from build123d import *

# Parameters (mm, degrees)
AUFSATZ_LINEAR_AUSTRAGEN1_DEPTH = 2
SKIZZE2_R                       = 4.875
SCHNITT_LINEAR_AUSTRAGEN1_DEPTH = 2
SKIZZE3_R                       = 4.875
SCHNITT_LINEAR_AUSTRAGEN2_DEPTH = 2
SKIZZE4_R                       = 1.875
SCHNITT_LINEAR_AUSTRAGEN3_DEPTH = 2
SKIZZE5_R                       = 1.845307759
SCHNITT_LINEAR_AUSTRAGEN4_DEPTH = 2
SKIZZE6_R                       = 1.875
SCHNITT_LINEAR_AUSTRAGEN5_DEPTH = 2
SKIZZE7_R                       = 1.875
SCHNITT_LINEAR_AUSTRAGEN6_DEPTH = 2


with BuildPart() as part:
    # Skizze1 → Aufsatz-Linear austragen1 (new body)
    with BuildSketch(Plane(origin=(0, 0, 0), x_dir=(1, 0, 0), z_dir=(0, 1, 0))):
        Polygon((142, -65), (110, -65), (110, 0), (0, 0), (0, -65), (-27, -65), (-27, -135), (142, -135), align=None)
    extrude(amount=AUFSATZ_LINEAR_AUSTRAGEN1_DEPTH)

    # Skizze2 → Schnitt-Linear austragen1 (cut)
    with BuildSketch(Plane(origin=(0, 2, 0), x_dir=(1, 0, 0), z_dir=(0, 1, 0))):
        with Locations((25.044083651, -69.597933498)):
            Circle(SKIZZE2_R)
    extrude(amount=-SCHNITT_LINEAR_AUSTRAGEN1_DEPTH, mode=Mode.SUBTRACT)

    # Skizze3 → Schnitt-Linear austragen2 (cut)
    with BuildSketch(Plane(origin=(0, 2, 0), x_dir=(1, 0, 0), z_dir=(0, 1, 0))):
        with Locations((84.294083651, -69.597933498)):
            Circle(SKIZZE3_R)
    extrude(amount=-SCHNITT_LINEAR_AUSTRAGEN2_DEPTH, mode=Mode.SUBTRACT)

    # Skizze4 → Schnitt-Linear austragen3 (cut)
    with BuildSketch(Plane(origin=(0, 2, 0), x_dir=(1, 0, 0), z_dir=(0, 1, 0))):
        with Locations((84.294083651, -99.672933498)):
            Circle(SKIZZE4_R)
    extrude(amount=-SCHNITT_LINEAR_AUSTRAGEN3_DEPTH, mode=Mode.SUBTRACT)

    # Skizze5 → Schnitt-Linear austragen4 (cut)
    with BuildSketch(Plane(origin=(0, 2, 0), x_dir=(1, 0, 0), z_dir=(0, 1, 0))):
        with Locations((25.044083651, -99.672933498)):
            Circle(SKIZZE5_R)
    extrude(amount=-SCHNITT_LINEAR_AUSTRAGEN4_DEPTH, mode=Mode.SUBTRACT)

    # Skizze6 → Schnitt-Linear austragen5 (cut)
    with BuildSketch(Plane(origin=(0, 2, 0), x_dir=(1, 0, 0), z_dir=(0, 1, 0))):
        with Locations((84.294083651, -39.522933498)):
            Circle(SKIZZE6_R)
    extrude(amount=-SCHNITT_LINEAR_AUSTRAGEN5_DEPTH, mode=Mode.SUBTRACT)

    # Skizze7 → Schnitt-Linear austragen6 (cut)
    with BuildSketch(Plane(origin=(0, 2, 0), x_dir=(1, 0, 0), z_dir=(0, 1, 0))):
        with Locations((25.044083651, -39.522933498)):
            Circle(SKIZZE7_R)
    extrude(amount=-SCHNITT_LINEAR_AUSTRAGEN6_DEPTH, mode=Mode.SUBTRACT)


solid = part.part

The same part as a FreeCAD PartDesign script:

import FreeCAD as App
import Part
import Sketcher
Q = App.Units.Quantity

doc = App.newDocument("Part")
body = doc.addObject("PartDesign::Body", "Body")

sketch1 = body.newObject("Sketcher::SketchObject", "Sketch")
sketch1.AttachmentSupport = (doc.getObject("XZ_Plane"), [""])
sketch1.MapMode = "FlatFace"
sketch1.addGeometry(Part.LineSegment(App.Vector(142, 65, 0), App.Vector(110, 65, 0)), False)
sketch1.addGeometry(Part.LineSegment(App.Vector(110, 65, 0), App.Vector(110, 0, 0)), False)
sketch1.addGeometry(Part.LineSegment(App.Vector(110, 0, 0), App.Vector(0, 0, 0)), False)
sketch1.addGeometry(Part.LineSegment(App.Vector(0, 0, 0), App.Vector(0, 65, 0)), False)
sketch1.addGeometry(Part.LineSegment(App.Vector(0, 65, 0), App.Vector(-27, 65, 0)), False)
sketch1.addGeometry(Part.LineSegment(App.Vector(-27, 65, 0), App.Vector(-27, 135, 0)), False)
sketch1.addGeometry(Part.LineSegment(App.Vector(-27, 135, 0), App.Vector(142, 135, 0)), False)
sketch1.addGeometry(Part.LineSegment(App.Vector(142, 135, 0), App.Vector(142, 65, 0)), False)
sketch1.addConstraint(Sketcher.Constraint("Coincident", 0, 2, 1, 1))
sketch1.addConstraint(Sketcher.Constraint("Coincident", 1, 2, 2, 1))
sketch1.addConstraint(Sketcher.Constraint("Coincident", 2, 2, 3, 1))
sketch1.addConstraint(Sketcher.Constraint("Coincident", 3, 2, 4, 1))
sketch1.addConstraint(Sketcher.Constraint("Coincident", 4, 2, 5, 1))
sketch1.addConstraint(Sketcher.Constraint("Coincident", 5, 2, 6, 1))
sketch1.addConstraint(Sketcher.Constraint("Coincident", 6, 2, 7, 1))
sketch1.addConstraint(Sketcher.Constraint("Coincident", 7, 2, 0, 1))
sketch1.addConstraint(Sketcher.Constraint("Horizontal", 0))
sketch1.addConstraint(Sketcher.Constraint("Vertical", 1))
sketch1.addConstraint(Sketcher.Constraint("Horizontal", 2))
sketch1.addConstraint(Sketcher.Constraint("Vertical", 3))
sketch1.addConstraint(Sketcher.Constraint("Horizontal", 4))
sketch1.addConstraint(Sketcher.Constraint("Vertical", 5))
sketch1.addConstraint(Sketcher.Constraint("Horizontal", 6))
sketch1.addConstraint(Sketcher.Constraint("Vertical", 7))
sketch1.addConstraint(Sketcher.Constraint("Coincident", 2, 2, -1, 1))
sketch1.addConstraint(Sketcher.Constraint("Horizontal", 0, 2, 3, 2))
sketch1.addConstraint(Sketcher.Constraint("DistanceX", 0, 2, 0, 1, Q("32 mm")))
sketch1.addConstraint(Sketcher.Constraint("DistanceX", 2, 2, 2, 1, Q("110 mm")))
sketch1.addConstraint(Sketcher.Constraint("DistanceX", 4, 2, 4, 1, Q("27 mm")))
sketch1.addConstraint(Sketcher.Constraint("DistanceY", 1, 2, 1, 1, Q("65 mm")))
sketch1.addConstraint(Sketcher.Constraint("DistanceY", 5, 1, 5, 2, Q("70 mm")))
pad1 = body.newObject("PartDesign::Pad", "Pad")
pad1.Profile = sketch1
pad1.Length = 2
pad1.Reversed = True

sketch2 = body.newObject("Sketcher::SketchObject", "Sketch001")
sketch2.AttachmentSupport = (doc.getObject("XZ_Plane"), [""])
sketch2.MapMode = "FlatFace"
sketch2.AttachmentOffset = App.Placement(App.Vector(0, 0, -2), App.Rotation())
sketch2.addGeometry(Part.Circle(App.Vector(25.044084, 69.597933, 0), App.Vector(0, 0, 1), 4.875), False)
sketch2.addConstraint(Sketcher.Constraint("Diameter", 0, Q("9.75 mm")))
sketch2.addConstraint(Sketcher.Constraint("DistanceX", -1, 1, 0, 3, Q("25.044084 mm")))
sketch2.addConstraint(Sketcher.Constraint("DistanceY", -1, 1, 0, 3, Q("69.597933 mm")))
pocket1 = body.newObject("PartDesign::Pocket", "Pocket")
pocket1.Profile = sketch2
pocket1.Length = 2
pocket1.Reversed = True

sketch3 = body.newObject("Sketcher::SketchObject", "Sketch002")
sketch3.AttachmentSupport = (doc.getObject("XZ_Plane"), [""])
sketch3.MapMode = "FlatFace"
sketch3.AttachmentOffset = App.Placement(App.Vector(0, 0, -2), App.Rotation())
sketch3.addGeometry(Part.Circle(App.Vector(84.294084, 69.597933, 0), App.Vector(0, 0, 1), 4.875), False)
sketch3.addConstraint(Sketcher.Constraint("Diameter", 0, Q("9.75 mm")))
sketch3.addConstraint(Sketcher.Constraint("DistanceX", -1, 1, 0, 3, Q("84.294084 mm")))
sketch3.addConstraint(Sketcher.Constraint("DistanceY", -1, 1, 0, 3, Q("69.597933 mm")))
pocket2 = body.newObject("PartDesign::Pocket", "Pocket001")
pocket2.Profile = sketch3
pocket2.Length = 2
pocket2.Reversed = True

sketch4 = body.newObject("Sketcher::SketchObject", "Sketch003")
sketch4.AttachmentSupport = (doc.getObject("XZ_Plane"), [""])
sketch4.MapMode = "FlatFace"
sketch4.AttachmentOffset = App.Placement(App.Vector(0, 0, -2), App.Rotation())
sketch4.addGeometry(Part.Circle(App.Vector(84.294084, 99.672933, 0), App.Vector(0, 0, 1), 1.875), False)
sketch4.addConstraint(Sketcher.Constraint("Diameter", 0, Q("3.75 mm")))
sketch4.addConstraint(Sketcher.Constraint("DistanceX", -1, 1, 0, 3, Q("84.294084 mm")))
sketch4.addConstraint(Sketcher.Constraint("DistanceY", -1, 1, 0, 3, Q("99.672933 mm")))
pocket3 = body.newObject("PartDesign::Pocket", "Pocket002")
pocket3.Profile = sketch4
pocket3.Length = 2
pocket3.Reversed = True

sketch5 = body.newObject("Sketcher::SketchObject", "Sketch004")
sketch5.AttachmentSupport = (doc.getObject("XZ_Plane"), [""])
sketch5.MapMode = "FlatFace"
sketch5.AttachmentOffset = App.Placement(App.Vector(0, 0, -2), App.Rotation())
sketch5.addGeometry(Part.Circle(App.Vector(25.044084, 99.672933, 0), App.Vector(0, 0, 1), 1.845308), False)
sketch5.addConstraint(Sketcher.Constraint("Diameter", 0, Q("3.690616 mm")))
sketch5.addConstraint(Sketcher.Constraint("DistanceX", -1, 1, 0, 3, Q("25.044084 mm")))
sketch5.addConstraint(Sketcher.Constraint("DistanceY", -1, 1, 0, 3, Q("99.672933 mm")))
pocket4 = body.newObject("PartDesign::Pocket", "Pocket003")
pocket4.Profile = sketch5
pocket4.Length = 2
pocket4.Reversed = True

sketch6 = body.newObject("Sketcher::SketchObject", "Sketch005")
sketch6.AttachmentSupport = (doc.getObject("XZ_Plane"), [""])
sketch6.MapMode = "FlatFace"
sketch6.AttachmentOffset = App.Placement(App.Vector(0, 0, -2), App.Rotation())
sketch6.addGeometry(Part.Circle(App.Vector(84.294084, 39.522933, 0), App.Vector(0, 0, 1), 1.875), False)
sketch6.addConstraint(Sketcher.Constraint("Diameter", 0, Q("3.75 mm")))
sketch6.addConstraint(Sketcher.Constraint("DistanceX", -1, 1, 0, 3, Q("84.294084 mm")))
sketch6.addConstraint(Sketcher.Constraint("DistanceY", -1, 1, 0, 3, Q("39.522933 mm")))
pocket5 = body.newObject("PartDesign::Pocket", "Pocket004")
pocket5.Profile = sketch6
pocket5.Length = 2
pocket5.Reversed = True

sketch7 = body.newObject("Sketcher::SketchObject", "Sketch006")
sketch7.AttachmentSupport = (doc.getObject("XZ_Plane"), [""])
sketch7.MapMode = "FlatFace"
sketch7.AttachmentOffset = App.Placement(App.Vector(0, 0, -2), App.Rotation())
sketch7.addGeometry(Part.Circle(App.Vector(25.044084, 39.522933, 0), App.Vector(0, 0, 1), 1.875), False)
sketch7.addConstraint(Sketcher.Constraint("Diameter", 0, Q("3.75 mm")))
sketch7.addConstraint(Sketcher.Constraint("DistanceX", -1, 1, 0, 3, Q("25.044084 mm")))
sketch7.addConstraint(Sketcher.Constraint("DistanceY", -1, 1, 0, 3, Q("39.522933 mm")))
pocket6 = body.newObject("PartDesign::Pocket", "Pocket005")
pocket6.Profile = sketch7
pocket6.Length = 2
pocket6.Reversed = True

doc.recompute()
